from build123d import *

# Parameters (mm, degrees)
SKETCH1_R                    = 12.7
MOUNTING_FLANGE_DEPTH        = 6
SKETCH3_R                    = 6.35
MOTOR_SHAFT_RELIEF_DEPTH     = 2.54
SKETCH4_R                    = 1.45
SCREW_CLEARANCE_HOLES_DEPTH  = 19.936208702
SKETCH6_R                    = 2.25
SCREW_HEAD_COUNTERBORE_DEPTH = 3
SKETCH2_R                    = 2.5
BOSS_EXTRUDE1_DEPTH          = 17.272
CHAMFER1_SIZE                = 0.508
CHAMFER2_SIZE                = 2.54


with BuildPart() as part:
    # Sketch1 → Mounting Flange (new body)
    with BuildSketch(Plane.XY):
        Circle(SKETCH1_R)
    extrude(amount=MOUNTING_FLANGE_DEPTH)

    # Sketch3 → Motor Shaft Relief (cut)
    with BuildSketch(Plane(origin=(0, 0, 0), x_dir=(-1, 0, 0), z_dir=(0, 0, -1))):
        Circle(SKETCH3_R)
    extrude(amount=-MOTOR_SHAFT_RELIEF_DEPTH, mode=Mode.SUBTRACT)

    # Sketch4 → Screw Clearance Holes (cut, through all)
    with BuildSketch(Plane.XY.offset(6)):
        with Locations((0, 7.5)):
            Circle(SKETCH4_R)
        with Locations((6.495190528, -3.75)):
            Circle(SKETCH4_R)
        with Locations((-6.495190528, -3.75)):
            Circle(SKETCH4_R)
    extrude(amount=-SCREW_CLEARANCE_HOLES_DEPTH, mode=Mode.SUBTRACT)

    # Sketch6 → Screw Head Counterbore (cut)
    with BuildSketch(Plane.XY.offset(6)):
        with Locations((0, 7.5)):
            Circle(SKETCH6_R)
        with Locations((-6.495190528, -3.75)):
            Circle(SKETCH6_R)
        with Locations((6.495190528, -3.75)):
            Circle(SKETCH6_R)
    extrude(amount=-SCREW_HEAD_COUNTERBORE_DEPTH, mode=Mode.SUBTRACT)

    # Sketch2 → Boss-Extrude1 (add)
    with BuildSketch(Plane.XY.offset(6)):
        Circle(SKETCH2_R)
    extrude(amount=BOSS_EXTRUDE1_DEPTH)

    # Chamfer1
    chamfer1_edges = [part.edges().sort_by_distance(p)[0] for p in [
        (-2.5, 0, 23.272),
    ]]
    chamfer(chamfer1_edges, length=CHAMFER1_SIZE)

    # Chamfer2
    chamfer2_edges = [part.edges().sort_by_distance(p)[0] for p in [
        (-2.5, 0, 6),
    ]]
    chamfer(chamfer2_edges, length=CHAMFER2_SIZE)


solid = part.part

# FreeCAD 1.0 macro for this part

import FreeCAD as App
import Part
import Sketcher

V = App.Vector
Q = App.Units.Quantity


def edges_at(feature, points):
    """Names of the edges that pass closest to the given points."""
    edges = feature.Shape.Edges
    near = lambda p: min(range(len(edges)), key=lambda i: edges[i].distToShape(Part.Vertex(*p))[0])
    return sorted({f"Edge{near(p) + 1}" for p in points})

doc = App.newDocument("Part")
body = doc.addObject("PartDesign::Body", "Body")

# Sketch on XY plane
sketch1 = body.newObject("Sketcher::SketchObject", "Sketch")
sketch1.AttachmentSupport = (doc.getObject("XY_Plane"), [""])
sketch1.MapMode = "FlatFace"
sketch1.addGeometry(Part.Circle(V(0, 0, 0), V(0, 0, 1), 12.7), False)
sketch1.addConstraint(Sketcher.Constraint("Coincident", 0, 3, -1, 1))
sketch1.addConstraint(Sketcher.Constraint("Diameter", 0, Q("25.4 mm")))
pad1 = body.newObject("PartDesign::Pad", "Pad")
pad1.Profile = sketch1
pad1.Length = 6

# Sketch on XY plane
sketch2 = body.newObject("Sketcher::SketchObject", "Sketch001")
sketch2.AttachmentSupport = (doc.getObject("XY_Plane"), [""])
sketch2.MapMode = "FlatFace"
sketch2.addGeometry(Part.Circle(V(0, 0, 0), V(0, 0, 1), 6.35), False)
sketch2.addConstraint(Sketcher.Constraint("Coincident", 0, 3, -1, 1))
sketch2.addConstraint(Sketcher.Constraint("Diameter", 0, Q("12.7 mm")))
pocket1 = body.newObject("PartDesign::Pocket", "Pocket")
pocket1.Profile = sketch2
pocket1.Length = 2.54
pocket1.Reversed = True

# Sketch on XY plane
sketch3 = body.newObject("Sketcher::SketchObject", "Sketch002")
sketch3.AttachmentSupport = (doc.getObject("XY_Plane"), [""])
sketch3.MapMode = "FlatFace"
sketch3.AttachmentOffset = App.Placement(V(0, 0, 6), App.Rotation())
sketch3.addGeometry(Part.Circle(V(0, 7.5, 0), V(0, 0, 1), 1.45), False)
sketch3.addGeometry(Part.Circle(V(6.495191, -3.75, 0), V(0, 0, 1), 1.45), False)
sketch3.addGeometry(Part.Circle(V(-6.495191, -3.75, 0), V(0, 0, 1), 1.45), False)
sketch3.addConstraint(Sketcher.Constraint("Equal", 0, 1))
sketch3.addConstraint(Sketcher.Constraint("Equal", 1, 2))
sketch3.addConstraint(Sketcher.Constraint("Symmetric", 1, 3, 2, 3, -2))
sketch3.addConstraint(Sketcher.Constraint("PointOnObject", 0, 3, -2))
sketch3.addConstraint(Sketcher.Constraint("Diameter", 0, Q("2.9 mm")))
sketch3.addConstraint(Sketcher.Constraint("DistanceY", -1, 1, 0, 3, Q("7.5 mm")))
sketch3.addConstraint(Sketcher.Constraint("DistanceY", 1, 3, -1, 1, Q("3.75 mm")))
sketch3.addConstraint(Sketcher.Constraint("DistanceX", -1, 1, 1, 3, Q("6.495191 mm")))
pocket2 = body.newObject("PartDesign::Pocket", "Pocket001")
pocket2.Profile = sketch3
pocket2.Type = "ThroughAll"

# Sketch on XY plane
sketch4 = body.newObject("Sketcher::SketchObject", "Sketch003")
sketch4.AttachmentSupport = (doc.getObject("XY_Plane"), [""])
sketch4.MapMode = "FlatFace"
sketch4.AttachmentOffset = App.Placement(V(0, 0, 6), App.Rotation())
sketch4.addGeometry(Part.Circle(V(0, 7.5, 0), V(0, 0, 1), 2.25), False)
sketch4.addGeometry(Part.Circle(V(-6.495191, -3.75, 0), V(0, 0, 1), 2.25), False)
sketch4.addGeometry(Part.Circle(V(6.495191, -3.75, 0), V(0, 0, 1), 2.25), False)
sketch4.addConstraint(Sketcher.Constraint("Equal", 0, 1))
sketch4.addConstraint(Sketcher.Constraint("Equal", 1, 2))
sketch4.addConstraint(Sketcher.Constraint("Symmetric", 1, 3, 2, 3, -2))
sketch4.addConstraint(Sketcher.Constraint("PointOnObject", 0, 3, -2))
sketch4.addConstraint(Sketcher.Constraint("Diameter", 0, Q("4.5 mm")))
sketch4.addConstraint(Sketcher.Constraint("DistanceY", -1, 1, 0, 3, Q("7.5 mm")))
sketch4.addConstraint(Sketcher.Constraint("DistanceY", 1, 3, -1, 1, Q("3.75 mm")))
sketch4.addConstraint(Sketcher.Constraint("DistanceX", 1, 3, -1, 1, Q("6.495191 mm")))
pocket3 = body.newObject("PartDesign::Pocket", "Pocket002")
pocket3.Profile = sketch4
pocket3.Length = 3

# Sketch on XY plane
sketch5 = body.newObject("Sketcher::SketchObject", "Sketch004")
sketch5.AttachmentSupport = (doc.getObject("XY_Plane"), [""])
sketch5.MapMode = "FlatFace"
sketch5.AttachmentOffset = App.Placement(V(0, 0, 6), App.Rotation())
sketch5.addGeometry(Part.Circle(V(0, 0, 0), V(0, 0, 1), 2.5), False)
sketch5.addConstraint(Sketcher.Constraint("Coincident", 0, 3, -1, 1))
sketch5.addConstraint(Sketcher.Constraint("Diameter", 0, Q("5 mm")))
pad2 = body.newObject("PartDesign::Pad", "Pad001")
pad2.Profile = sketch5
pad2.Length = 17.272
doc.recompute()

chamfer = body.newObject("PartDesign::Chamfer", "Chamfer")
chamfer.Base = (pad2, edges_at(pad2, [(-2.5, 0, 23.272)]))
chamfer.Size = 0.508
doc.recompute()

chamfer2 = body.newObject("PartDesign::Chamfer", "Chamfer001")
chamfer2.Base = (chamfer, edges_at(chamfer, [(-2.5, 0, 6)]))
chamfer2.Size = 2.54

doc.recompute()
